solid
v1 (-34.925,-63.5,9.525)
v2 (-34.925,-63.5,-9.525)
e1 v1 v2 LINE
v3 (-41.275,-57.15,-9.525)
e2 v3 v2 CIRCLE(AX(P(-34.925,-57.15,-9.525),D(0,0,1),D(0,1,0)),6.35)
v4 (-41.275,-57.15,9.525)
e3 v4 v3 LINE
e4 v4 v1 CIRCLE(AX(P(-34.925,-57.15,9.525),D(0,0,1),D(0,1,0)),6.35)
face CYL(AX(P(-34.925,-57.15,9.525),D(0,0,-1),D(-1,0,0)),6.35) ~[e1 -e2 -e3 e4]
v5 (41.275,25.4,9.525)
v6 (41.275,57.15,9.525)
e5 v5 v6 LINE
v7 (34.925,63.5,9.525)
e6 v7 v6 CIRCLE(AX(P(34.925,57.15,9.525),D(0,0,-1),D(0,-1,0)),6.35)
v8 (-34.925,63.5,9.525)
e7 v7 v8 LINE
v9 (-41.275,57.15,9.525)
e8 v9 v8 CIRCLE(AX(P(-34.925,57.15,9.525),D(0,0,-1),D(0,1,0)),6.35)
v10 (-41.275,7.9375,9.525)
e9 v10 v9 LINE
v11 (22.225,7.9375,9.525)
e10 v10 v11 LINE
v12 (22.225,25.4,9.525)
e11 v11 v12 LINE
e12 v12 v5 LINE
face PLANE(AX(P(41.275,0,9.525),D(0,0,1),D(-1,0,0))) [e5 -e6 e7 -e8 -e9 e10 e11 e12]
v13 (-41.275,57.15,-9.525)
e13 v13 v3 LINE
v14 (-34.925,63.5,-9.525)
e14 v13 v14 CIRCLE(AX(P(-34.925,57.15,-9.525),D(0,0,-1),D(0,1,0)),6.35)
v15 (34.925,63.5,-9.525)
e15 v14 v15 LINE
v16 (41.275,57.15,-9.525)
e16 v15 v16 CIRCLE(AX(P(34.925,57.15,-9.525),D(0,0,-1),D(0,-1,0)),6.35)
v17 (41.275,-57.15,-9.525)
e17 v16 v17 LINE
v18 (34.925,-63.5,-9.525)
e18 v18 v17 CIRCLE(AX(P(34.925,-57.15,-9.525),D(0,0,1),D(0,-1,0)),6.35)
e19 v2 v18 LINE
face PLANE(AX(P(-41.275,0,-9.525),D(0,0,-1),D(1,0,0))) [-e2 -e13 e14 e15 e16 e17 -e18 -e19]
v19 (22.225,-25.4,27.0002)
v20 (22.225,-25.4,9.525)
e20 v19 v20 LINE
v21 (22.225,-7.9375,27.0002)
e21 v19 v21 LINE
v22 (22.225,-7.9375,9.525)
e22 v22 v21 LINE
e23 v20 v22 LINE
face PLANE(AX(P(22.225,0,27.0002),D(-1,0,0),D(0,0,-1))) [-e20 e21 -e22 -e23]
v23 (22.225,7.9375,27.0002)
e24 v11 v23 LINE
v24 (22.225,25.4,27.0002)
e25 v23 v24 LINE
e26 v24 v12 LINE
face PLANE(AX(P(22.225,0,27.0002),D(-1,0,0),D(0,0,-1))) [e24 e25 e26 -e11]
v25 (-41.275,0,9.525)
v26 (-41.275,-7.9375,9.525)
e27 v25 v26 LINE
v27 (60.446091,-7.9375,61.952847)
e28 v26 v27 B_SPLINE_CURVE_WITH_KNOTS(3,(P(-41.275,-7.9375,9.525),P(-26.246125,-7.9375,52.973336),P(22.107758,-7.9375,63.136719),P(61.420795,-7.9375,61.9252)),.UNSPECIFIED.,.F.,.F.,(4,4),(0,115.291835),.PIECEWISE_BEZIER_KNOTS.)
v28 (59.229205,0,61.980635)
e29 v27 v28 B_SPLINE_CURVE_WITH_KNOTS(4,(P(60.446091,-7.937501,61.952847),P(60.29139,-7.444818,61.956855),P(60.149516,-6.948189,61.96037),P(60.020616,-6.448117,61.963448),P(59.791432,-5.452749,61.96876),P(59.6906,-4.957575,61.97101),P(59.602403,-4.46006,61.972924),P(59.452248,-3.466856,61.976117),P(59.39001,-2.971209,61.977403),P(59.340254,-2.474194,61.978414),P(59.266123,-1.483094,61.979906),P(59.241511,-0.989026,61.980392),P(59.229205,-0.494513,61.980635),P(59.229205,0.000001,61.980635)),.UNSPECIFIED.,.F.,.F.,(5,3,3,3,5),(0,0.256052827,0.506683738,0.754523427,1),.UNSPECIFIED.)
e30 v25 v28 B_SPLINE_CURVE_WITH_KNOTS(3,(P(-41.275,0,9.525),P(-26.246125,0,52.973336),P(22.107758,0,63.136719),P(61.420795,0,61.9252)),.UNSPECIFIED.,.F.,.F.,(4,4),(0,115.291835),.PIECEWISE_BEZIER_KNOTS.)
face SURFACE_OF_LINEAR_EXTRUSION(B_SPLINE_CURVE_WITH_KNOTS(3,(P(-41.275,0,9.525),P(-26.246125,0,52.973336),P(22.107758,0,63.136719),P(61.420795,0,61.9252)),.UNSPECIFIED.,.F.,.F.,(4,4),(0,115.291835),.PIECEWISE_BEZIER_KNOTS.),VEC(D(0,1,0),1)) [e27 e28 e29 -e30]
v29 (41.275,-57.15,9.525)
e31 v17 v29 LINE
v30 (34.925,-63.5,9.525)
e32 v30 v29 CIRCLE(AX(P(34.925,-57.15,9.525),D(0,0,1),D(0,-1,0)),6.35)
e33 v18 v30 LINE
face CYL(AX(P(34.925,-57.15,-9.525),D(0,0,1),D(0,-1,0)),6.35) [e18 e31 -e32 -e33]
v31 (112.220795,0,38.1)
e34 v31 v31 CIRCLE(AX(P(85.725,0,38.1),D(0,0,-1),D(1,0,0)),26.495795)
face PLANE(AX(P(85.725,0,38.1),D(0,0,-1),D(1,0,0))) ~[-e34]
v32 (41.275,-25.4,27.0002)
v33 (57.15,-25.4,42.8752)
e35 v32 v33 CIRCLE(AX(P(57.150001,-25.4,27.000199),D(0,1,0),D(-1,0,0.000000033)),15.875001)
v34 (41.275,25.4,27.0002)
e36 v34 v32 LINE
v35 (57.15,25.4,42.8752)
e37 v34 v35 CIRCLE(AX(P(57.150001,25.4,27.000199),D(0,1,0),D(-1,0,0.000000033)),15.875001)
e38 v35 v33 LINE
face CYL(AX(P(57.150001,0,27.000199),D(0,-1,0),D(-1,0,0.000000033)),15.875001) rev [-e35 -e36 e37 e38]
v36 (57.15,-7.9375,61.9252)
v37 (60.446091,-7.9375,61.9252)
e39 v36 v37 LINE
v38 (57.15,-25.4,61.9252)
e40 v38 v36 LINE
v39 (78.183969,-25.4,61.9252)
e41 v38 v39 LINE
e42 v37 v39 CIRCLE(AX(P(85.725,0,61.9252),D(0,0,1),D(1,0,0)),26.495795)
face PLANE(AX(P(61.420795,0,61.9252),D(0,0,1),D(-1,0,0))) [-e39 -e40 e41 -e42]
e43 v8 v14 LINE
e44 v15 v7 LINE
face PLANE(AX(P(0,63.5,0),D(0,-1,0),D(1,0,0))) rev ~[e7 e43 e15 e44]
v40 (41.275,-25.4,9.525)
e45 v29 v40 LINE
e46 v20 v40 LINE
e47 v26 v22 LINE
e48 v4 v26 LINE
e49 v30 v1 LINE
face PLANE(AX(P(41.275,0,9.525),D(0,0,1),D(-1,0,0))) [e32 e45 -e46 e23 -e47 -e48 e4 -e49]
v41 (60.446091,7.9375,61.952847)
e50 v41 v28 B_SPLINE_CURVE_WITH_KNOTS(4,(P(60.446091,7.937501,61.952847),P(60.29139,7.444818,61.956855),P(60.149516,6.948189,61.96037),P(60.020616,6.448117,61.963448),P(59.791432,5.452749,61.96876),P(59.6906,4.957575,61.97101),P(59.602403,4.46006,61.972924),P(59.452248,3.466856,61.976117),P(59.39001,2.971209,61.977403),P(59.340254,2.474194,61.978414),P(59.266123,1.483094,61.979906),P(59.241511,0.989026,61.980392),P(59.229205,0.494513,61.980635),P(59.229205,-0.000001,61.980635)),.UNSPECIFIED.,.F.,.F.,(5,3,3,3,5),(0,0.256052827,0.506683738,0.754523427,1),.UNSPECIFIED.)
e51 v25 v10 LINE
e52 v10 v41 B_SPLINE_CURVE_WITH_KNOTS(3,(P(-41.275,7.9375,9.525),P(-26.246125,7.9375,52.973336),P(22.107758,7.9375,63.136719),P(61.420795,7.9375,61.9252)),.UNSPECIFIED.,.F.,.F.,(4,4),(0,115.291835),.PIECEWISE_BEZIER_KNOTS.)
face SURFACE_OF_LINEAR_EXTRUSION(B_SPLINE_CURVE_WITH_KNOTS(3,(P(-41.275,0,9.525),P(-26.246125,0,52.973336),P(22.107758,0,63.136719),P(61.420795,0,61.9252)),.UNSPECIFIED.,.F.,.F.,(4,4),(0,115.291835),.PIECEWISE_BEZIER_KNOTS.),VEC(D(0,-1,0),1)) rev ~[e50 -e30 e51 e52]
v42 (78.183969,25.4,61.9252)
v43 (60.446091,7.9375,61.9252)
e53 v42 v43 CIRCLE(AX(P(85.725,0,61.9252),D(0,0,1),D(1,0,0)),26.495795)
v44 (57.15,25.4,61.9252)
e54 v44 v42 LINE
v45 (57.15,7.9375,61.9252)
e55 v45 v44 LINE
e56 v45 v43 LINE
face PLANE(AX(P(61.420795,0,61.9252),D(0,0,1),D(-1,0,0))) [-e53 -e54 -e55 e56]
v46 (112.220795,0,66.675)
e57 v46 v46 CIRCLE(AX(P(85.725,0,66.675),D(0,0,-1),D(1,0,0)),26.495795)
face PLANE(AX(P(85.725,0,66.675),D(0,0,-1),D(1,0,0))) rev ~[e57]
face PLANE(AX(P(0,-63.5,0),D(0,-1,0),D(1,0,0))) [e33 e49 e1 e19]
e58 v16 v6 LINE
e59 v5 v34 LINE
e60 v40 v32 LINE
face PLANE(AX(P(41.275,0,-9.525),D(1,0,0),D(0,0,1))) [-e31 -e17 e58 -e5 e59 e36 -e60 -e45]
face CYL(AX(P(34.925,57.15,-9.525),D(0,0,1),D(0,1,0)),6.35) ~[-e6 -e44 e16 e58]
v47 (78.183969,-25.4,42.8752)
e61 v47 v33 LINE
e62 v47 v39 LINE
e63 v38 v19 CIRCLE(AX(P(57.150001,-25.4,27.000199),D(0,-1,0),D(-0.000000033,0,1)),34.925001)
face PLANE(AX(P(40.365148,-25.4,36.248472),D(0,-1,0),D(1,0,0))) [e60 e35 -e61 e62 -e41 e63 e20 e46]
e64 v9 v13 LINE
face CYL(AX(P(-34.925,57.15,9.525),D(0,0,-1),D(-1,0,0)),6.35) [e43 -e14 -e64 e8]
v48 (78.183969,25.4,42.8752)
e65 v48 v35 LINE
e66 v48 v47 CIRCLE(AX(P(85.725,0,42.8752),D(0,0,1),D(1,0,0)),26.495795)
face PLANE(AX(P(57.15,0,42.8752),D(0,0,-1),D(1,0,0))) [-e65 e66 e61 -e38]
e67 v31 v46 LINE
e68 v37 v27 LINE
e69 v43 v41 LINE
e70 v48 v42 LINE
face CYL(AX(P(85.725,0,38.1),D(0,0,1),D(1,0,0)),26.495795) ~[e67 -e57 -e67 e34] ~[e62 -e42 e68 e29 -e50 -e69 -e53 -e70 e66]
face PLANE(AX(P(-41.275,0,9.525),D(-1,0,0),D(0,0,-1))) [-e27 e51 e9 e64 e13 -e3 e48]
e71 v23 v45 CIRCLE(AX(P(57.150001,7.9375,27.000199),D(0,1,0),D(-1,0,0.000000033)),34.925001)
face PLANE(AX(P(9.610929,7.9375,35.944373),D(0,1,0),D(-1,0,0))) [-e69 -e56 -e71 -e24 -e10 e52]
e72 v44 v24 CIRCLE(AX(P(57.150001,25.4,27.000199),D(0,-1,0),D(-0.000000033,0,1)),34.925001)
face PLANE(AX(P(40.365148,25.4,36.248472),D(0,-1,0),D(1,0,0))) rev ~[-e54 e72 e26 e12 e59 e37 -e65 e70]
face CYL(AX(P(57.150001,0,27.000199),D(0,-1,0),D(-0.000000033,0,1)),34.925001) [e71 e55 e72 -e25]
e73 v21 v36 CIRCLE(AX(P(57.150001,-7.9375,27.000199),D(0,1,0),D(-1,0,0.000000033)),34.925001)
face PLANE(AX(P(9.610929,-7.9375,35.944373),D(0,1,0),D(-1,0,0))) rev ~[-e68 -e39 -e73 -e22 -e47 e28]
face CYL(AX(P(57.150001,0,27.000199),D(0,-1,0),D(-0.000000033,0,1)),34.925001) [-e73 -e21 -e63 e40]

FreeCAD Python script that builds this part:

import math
import FreeCAD as App
import Part
import Sketcher
Q = App.Units.Quantity


def edges_at(feature, points):
    """Names of the edges that pass closest to the given points."""
    edges = feature.Shape.Edges
    near = lambda p: min(range(len(edges)), key=lambda i: edges[i].distToShape(Part.Vertex(*p))[0])
    return sorted({f"Edge{near(p) + 1}" for p in points})

doc = App.newDocument("Part")
body = doc.addObject("PartDesign::Body", "Body")

# Sketch on XZ plane
sketch1 = doc.addObject("Sketcher::SketchObject", "Sketch")
body.addObject(sketch1)
sketch1.AttachmentSupport = (doc.XZ_Plane, [""])
sketch1.MapMode = "FlatFace"
sketch1.addGeometry([
    Part.LineSegment(App.Vector(-41, 10, 0), App.Vector(-41, -10, 0)),
    Part.LineSegment(App.Vector(-41, -10, 0), App.Vector(41, -10, 0)),
    Part.LineSegment(App.Vector(41, -10, 0), App.Vector(41, 10, 0)),
    Part.LineSegment(App.Vector(41, 10, 0), App.Vector(-41, 10, 0)),
], False)
sketch1.addConstraint([
    Sketcher.Constraint("Coincident", 0, 2, 1, 1),
    Sketcher.Constraint("Coincident", 1, 2, 2, 1),
    Sketcher.Constraint("Coincident", 2, 2, 3, 1),
    Sketcher.Constraint("Coincident", 3, 2, 0, 1),
    Sketcher.Constraint("Vertical", 0),
    Sketcher.Constraint("Horizontal", 1),
    Sketcher.Constraint("Vertical", 2),
    Sketcher.Constraint("Horizontal", 3),
    Sketcher.Constraint("Symmetric", 0, 2, 2, 2, -1, 1),
    Sketcher.Constraint("DistanceX", 1, 1, 1, 2, Q("3.25 in")),
    Sketcher.Constraint("DistanceY", 0, 2, 0, 1, Q("0.75 in")),
])
pad1 = doc.addObject("PartDesign::Pad", "Pad")
body.addObject(pad1)
pad1.Profile = sketch1
pad1.Length = Q("5 in")
pad1.Midplane = True

# Sketch on XZ plane
sketch2 = doc.addObject("Sketcher::SketchObject", "Sketch001")
body.addObject(sketch2)
sketch2.AttachmentSupport = (doc.XZ_Plane, [""])
sketch2.MapMode = "FlatFace"
sketch2.addGeometry([
    Part.LineSegment(App.Vector(22.2, 9.5, 0), App.Vector(41.3, 9.5, 0)),  # 0
    Part.LineSegment(App.Vector(41.3, 9.5, 0), App.Vector(41.3, 27, 0)),  # 1
    Part.ArcOfCircle(Part.Circle(App.Vector(57.2, 27, 0), App.Vector(0, 0, 1), 15.9), math.radians(90), math.radians(180)),  # 2
    Part.LineSegment(App.Vector(57.1, 42.9, 0), App.Vector(61.4, 42.9, 0)),  # 3
    Part.LineSegment(App.Vector(61.4, 42.9, 0), App.Vector(61.4, 61.9, 0)),  # 4
    Part.LineSegment(App.Vector(61.4, 61.9, 0), App.Vector(57.1, 61.9, 0)),  # 5
    Part.ArcOfCircle(Part.Circle(App.Vector(57.2, 27, 0), App.Vector(0, 0, 1), 34.9), math.radians(90), math.radians(180)),  # 6
    Part.LineSegment(App.Vector(22.2, 27, 0), App.Vector(22.2, 9.5, 0)),  # 7
], False)
sketch2.addConstraint([
    Sketcher.Constraint("Coincident", 0, 2, 1, 1),
    Sketcher.Constraint("Tangent", 1, 2, 2, 2),
    Sketcher.Constraint("Tangent", 2, 1, 3, 1),
    Sketcher.Constraint("Coincident", 3, 2, 4, 1),
    Sketcher.Constraint("Coincident", 4, 2, 5, 1),
    Sketcher.Constraint("Tangent", 5, 2, 6, 1),
    Sketcher.Constraint("Tangent", 6, 2, 7, 1),
    Sketcher.Constraint("Coincident", 7, 2, 0, 1),
    Sketcher.Constraint("Horizontal", 0),
    Sketcher.Constraint("Vertical", 1),
    Sketcher.Constraint("Horizontal", 3),
    Sketcher.Constraint("Vertical", 4),
    Sketcher.Constraint("Horizontal", 5),
    Sketcher.Constraint("Vertical", 7),
    Sketcher.Constraint("Coincident", 6, 3, 2, 3),
    Sketcher.Constraint("Radius", 2, Q("0.625 in")),
    Sketcher.Constraint("Radius", 6, Q("1.375 in")),
    Sketcher.Constraint("DistanceY", 1, 1, 1, 2, Q("0.688 in")),
    Sketcher.Constraint("DistanceX", -1, 1, 2, 3, Q("2.25 in")),
    Sketcher.Constraint("DistanceY", -1, 1, 2, 3, Q("1.063 in")),
    Sketcher.Constraint("DistanceX", 3, 1, 3, 2, Q("4.270795 mm")),
])
pad2 = doc.addObject("PartDesign::Pad", "Pad001")
body.addObject(pad2)
pad2.Profile = sketch2
pad2.Length = Q("2 in")
pad2.Midplane = True

# Sketch on XZ plane
sketch3 = doc.addObject("Sketcher::SketchObject", "Sketch002")
body.addObject(sketch3)
sketch3.AttachmentSupport = (doc.XZ_Plane, [""])
sketch3.MapMode = "FlatFace"
sketch3.addGeometry([
    Part.LineSegment(App.Vector(61, 62, 0), App.Vector(61, 43, 0)),
    Part.LineSegment(App.Vector(61, 43, 0), App.Vector(86, 43, 0)),
    Part.LineSegment(App.Vector(86, 43, 0), App.Vector(86, 62, 0)),
    Part.LineSegment(App.Vector(86, 62, 0), App.Vector(61, 62, 0)),
], False)
sketch3.addConstraint([
    Sketcher.Constraint("Coincident", 0, 2, 1, 1),
    Sketcher.Constraint("Coincident", 1, 2, 2, 1),
    Sketcher.Constraint("Coincident", 2, 2, 3, 1),
    Sketcher.Constraint("Coincident", 3, 2, 0, 1),
    Sketcher.Constraint("Vertical", 0),
    Sketcher.Constraint("Horizontal", 1),
    Sketcher.Constraint("Vertical", 2),
    Sketcher.Constraint("Horizontal", 3),
    Sketcher.Constraint("DistanceY", 0, 2, 0, 1, Q("0.75 in")),
    Sketcher.Constraint("DistanceY", -1, 1, 0, 2, Q("1.688 in")),
    Sketcher.Constraint("DistanceX", -1, 1, 1, 2, Q("3.375 in")),
    Sketcher.Constraint("DistanceX", 1, 1, 1, 2, Q("24.304205 mm")),
])
pad3 = doc.addObject("PartDesign::Pad", "Pad002")
body.addObject(pad3)
pad3.Profile = sketch3
pad3.Length = Q("2 in")
pad3.Midplane = True

# Sketch on XZ plane
sketch4 = doc.addObject("Sketcher::SketchObject", "Sketch003")
body.addObject(sketch4)
sketch4.AttachmentSupport = (doc.XZ_Plane, [""])
sketch4.MapMode = "FlatFace"
sketch4.addGeometry([
    Part.LineSegment(App.Vector(86, 67, 0), App.Vector(86, 38, 0)),
    Part.LineSegment(App.Vector(86, 38, 0), App.Vector(112, 38, 0)),
    Part.LineSegment(App.Vector(112, 38, 0), App.Vector(112, 67, 0)),
    Part.LineSegment(App.Vector(112, 67, 0), App.Vector(86, 67, 0)),
], False)
sketch4.addGeometry(Part.LineSegment(App.Vector(86, 67, 0), App.Vector(86, 38, 0)), True)  # axis
sketch4.addConstraint([
    Sketcher.Constraint("Coincident", 0, 2, 1, 1),
    Sketcher.Constraint("Coincident", 1, 2, 2, 1),
    Sketcher.Constraint("Coincident", 2, 2, 3, 1),
    Sketcher.Constraint("Coincident", 3, 2, 0, 1),
    Sketcher.Constraint("Vertical", 0),
    Sketcher.Constraint("Horizontal", 1),
    Sketcher.Constraint("Vertical", 2),
    Sketcher.Constraint("Horizontal", 3),
    Sketcher.Constraint("Vertical", 4),
    Sketcher.Constraint("Coincident", 4, 1, 3, 2),
    Sketcher.Constraint("Horizontal", 1, 2, 4, 2),
    Sketcher.Constraint("DistanceY", -1, 1, 0, 2, Q("1.5 in")),
    Sketcher.Constraint("DistanceY", 0, 2, 0, 1, Q("1.125 in")),
    Sketcher.Constraint("DistanceX", -1, 1, 0, 2, Q("3.375 in")),
    Sketcher.Constraint("DistanceX", 1, 1, 1, 2, Q("26.495795 mm")),
])
revolution = doc.addObject("PartDesign::Revolution", "Revolution")
body.addObject(revolution)
revolution.Profile = sketch4
revolution.ReferenceAxis = (sketch4, ["Axis0"])
revolution.Angle = 360

# Sketch on XZ plane
sketch5 = doc.addObject("Sketcher::SketchObject", "Sketch004")
body.addObject(sketch5)
sketch5.AttachmentSupport = (doc.XZ_Plane, [""])
sketch5.MapMode = "FlatFace"
sketch5.addGeometry([
    Part.BSplineCurve([App.Vector(-41.275, 9.525, 0), App.Vector(-26.246125, 52.973336, 0), App.Vector(22.107758, 63.136719, 0), App.Vector(61.420795, 61.9252, 0)], [4, 4], [0, 115.291835], False, 3, [1, 1, 1, 1], False),  # 0
    Part.LineSegment(App.Vector(-41.275, 9.525, 0), App.Vector(22.225, 9.525, 0)),  # 1
    Part.LineSegment(App.Vector(22.225, 9.525, 0), App.Vector(22.225, 27.0002, 0)),  # 2
    Part.ArcOfCircle(Part.Circle(App.Vector(57.150001, 27.000199, 0), App.Vector(0, 0, 1), 34.925001), math.radians(90.000002), math.radians(179.999998)),  # 3
    Part.LineSegment(App.Vector(57.15, 61.9252, 0), App.Vector(61.420795, 61.9252, 0)),  # 4
], False)
sketch5.addConstraint([
    Sketcher.Constraint("Block", 0),
    Sketcher.Constraint("Coincident", 0, 1, 1, 1),
    Sketcher.Constraint("Coincident", 1, 2, 2, 1),
    Sketcher.Constraint("Tangent", 2, 2, 3, 2),
    Sketcher.Constraint("Tangent", 3, 1, 4, 1),
    Sketcher.Constraint("Coincident", 4, 2, 0, 2),
    Sketcher.Constraint("Horizontal", 1),
    Sketcher.Constraint("Vertical", 2),
    Sketcher.Constraint("Horizontal", 4),
    Sketcher.Constraint("DistanceX", 1, 1, 1, 2, Q("2.5 in")),
    Sketcher.Constraint("Radius", 3, Q("1.375 in")),
])
pad4 = doc.addObject("PartDesign::Pad", "Pad003")
body.addObject(pad4)
pad4.Profile = sketch5
pad4.Length = Q("0.625 in")
pad4.Midplane = True
doc.recompute()

fillet = doc.addObject("PartDesign::Fillet", "Fillet")
body.addObject(fillet)
fillet.Base = (pad4, edges_at(pad4, [
    (41.275, 63.5, 0),
    (-41.275, 63.5, 0),
    (-41.275, -63.5, 0),
    (41.275, -63.5, 0),
]))
fillet.Radius = Q("0.25 in")

doc.recompute()
